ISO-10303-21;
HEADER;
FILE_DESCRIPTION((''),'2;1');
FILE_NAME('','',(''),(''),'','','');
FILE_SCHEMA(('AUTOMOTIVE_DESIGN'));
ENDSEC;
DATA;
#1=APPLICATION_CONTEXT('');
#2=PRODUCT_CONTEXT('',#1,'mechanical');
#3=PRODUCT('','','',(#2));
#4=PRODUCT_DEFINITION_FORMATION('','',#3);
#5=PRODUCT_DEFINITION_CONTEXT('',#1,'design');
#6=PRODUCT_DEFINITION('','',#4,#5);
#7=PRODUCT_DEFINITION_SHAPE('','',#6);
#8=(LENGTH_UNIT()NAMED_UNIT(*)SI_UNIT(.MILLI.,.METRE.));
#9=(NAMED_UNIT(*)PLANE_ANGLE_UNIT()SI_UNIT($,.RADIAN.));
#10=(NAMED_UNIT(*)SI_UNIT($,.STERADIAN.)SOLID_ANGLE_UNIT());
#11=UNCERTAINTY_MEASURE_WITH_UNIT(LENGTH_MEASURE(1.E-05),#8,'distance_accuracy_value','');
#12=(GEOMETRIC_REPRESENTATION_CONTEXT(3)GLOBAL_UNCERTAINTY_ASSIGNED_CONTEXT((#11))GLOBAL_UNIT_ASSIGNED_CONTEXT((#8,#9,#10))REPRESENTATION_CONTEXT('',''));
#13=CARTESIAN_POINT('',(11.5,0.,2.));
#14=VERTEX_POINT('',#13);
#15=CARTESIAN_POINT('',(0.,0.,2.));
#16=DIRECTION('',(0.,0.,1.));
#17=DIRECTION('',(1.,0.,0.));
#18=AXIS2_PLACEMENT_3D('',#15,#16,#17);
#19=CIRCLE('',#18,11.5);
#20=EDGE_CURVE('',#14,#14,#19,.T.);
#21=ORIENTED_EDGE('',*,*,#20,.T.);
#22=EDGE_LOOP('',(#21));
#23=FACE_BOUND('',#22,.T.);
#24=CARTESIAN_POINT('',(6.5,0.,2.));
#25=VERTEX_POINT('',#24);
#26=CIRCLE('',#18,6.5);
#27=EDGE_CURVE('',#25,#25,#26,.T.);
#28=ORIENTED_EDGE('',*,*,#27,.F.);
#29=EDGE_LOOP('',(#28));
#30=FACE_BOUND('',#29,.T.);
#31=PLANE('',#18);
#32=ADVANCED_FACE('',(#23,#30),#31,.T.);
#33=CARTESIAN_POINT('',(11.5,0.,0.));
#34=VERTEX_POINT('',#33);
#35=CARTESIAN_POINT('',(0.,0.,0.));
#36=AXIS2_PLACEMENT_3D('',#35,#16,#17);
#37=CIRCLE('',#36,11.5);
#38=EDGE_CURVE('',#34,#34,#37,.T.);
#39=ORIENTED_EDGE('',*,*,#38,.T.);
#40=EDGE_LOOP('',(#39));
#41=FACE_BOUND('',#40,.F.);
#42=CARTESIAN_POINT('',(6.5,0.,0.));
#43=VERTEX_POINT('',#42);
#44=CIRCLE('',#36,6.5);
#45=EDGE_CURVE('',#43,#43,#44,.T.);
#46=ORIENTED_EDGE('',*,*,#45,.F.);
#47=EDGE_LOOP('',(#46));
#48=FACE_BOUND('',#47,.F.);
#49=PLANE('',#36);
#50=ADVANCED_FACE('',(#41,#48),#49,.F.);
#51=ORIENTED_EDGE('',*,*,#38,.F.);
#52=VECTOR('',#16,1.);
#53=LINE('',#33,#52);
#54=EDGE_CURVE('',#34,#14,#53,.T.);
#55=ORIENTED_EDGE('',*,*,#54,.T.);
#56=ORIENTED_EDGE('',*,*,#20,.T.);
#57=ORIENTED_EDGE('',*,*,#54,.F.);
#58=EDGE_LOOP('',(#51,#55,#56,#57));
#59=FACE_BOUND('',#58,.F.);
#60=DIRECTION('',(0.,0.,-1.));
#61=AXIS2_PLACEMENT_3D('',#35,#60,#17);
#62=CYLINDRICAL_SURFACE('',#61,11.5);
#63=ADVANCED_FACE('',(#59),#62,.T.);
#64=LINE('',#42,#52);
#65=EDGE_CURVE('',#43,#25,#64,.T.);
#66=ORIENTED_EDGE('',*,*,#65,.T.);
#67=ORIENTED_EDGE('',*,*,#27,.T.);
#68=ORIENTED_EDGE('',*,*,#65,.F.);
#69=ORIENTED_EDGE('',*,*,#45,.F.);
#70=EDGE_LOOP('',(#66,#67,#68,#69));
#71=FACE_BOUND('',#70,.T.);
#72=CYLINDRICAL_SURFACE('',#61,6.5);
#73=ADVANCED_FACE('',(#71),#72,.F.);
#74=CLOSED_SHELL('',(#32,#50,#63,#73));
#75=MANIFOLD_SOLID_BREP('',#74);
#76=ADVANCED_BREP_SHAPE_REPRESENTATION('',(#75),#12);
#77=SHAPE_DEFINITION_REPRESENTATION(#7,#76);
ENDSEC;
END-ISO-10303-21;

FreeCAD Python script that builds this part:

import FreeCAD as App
import Part
import Sketcher
from FreeCAD import Vector

doc = App.newDocument("Part")
body = doc.addObject("PartDesign::Body", "Body")

sketch1 = body.newObject("Sketcher::SketchObject", "Sketch")
sketch1.AttachmentSupport = (doc.getObject("XY_Plane"), [""])
sketch1.MapMode = "FlatFace"
sketch1.addGeometry([
    Part.Circle(Vector(0, 0, 0), Vector(0, 0, 1), 11.5),
    Part.Circle(Vector(0, 0, 0), Vector(0, 0, 1), 6.5),
], False)
sketch1.addConstraint([
    Sketcher.Constraint("Coincident", 0, 3, -1, 1),
    Sketcher.Constraint("Coincident", 1, 3, -1, 1),
    Sketcher.Constraint("Diameter", 0, 23.0),
    Sketcher.Constraint("Diameter", 1, 13.0),
])
pad1 = body.newObject("PartDesign::Pad", "Pad")
pad1.Profile = sketch1
pad1.Length = 2

doc.recompute()
